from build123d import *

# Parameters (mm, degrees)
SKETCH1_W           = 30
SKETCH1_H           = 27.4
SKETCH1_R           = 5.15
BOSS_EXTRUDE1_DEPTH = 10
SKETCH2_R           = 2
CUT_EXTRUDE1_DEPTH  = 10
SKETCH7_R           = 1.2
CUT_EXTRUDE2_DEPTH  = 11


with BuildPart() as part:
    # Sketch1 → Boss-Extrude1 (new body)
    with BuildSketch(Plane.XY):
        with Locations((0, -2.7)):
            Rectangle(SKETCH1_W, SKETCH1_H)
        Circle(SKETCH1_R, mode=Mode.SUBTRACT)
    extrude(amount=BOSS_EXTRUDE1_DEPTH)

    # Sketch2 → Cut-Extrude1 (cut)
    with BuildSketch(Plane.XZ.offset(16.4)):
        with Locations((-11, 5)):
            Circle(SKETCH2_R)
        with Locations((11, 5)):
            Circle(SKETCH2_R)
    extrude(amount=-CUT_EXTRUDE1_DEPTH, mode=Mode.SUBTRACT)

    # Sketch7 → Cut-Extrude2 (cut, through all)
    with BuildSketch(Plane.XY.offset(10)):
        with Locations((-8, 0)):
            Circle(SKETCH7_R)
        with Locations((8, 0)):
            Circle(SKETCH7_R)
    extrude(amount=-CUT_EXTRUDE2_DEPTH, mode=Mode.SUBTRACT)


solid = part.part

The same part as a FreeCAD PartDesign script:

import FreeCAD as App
import Part
import Sketcher


def add_polygon(sketch, points):
    """Adds a closed chain of lines whose ends are joined by coincident constraints."""
    first, n = sketch.GeometryCount, len(points)
    for a, b in zip(points, points[1:] + points[:1]):
        sketch.addGeometry(Part.LineSegment(App.Vector(*a, 0), App.Vector(*b, 0)), False)
    for i in range(n):
        sketch.addConstraint(Sketcher.Constraint("Coincident", first + i, 2, first + (i + 1) % n, 1))

doc = App.newDocument("Part")
body = doc.addObject("PartDesign::Body", "Body")

# Sketch on XY plane
sketch1 = body.newObject("Sketcher::SketchObject", "Sketch")
sketch1.AttachmentSupport = (doc.getObject("XY_Plane"), [""])
sketch1.MapMode = "FlatFace"
add_polygon(sketch1, [(-15, 11), (-15, -16), (15, -16), (15, 11)])  # lines 0-3
sketch1.addGeometry(Part.Circle(App.Vector(0, 0, 0), App.Vector(0, 0, 1), 5), False)  # 4
sketch1.addConstraint(Sketcher.Constraint("Vertical", 0))
sketch1.addConstraint(Sketcher.Constraint("Horizontal", 1))
sketch1.addConstraint(Sketcher.Constraint("Vertical", 2))
sketch1.addConstraint(Sketcher.Constraint("Horizontal", 3))
sketch1.addConstraint(Sketcher.Constraint("Coincident", 4, 3, -1, 1))
sketch1.addConstraint(Sketcher.Constraint("Diameter", 4, 10.3))
sketch1.addConstraint(Sketcher.Constraint("DistanceX", 1, 1, 1, 2, 30.0))
sketch1.addConstraint(Sketcher.Constraint("DistanceY", 0, 2, 0, 1, 27.4))
sketch1.addConstraint(Sketcher.Constraint("DistanceX", 0, 2, -1, 1, 15.0))
sketch1.addConstraint(Sketcher.Constraint("DistanceY", -1, 1, 2, 2, 11.0))
pad1 = body.newObject("PartDesign::Pad", "Pad")
pad1.Profile = sketch1
pad1.Length = 10

# Sketch on XZ plane
sketch2 = body.newObject("Sketcher::SketchObject", "Sketch001")
sketch2.AttachmentSupport = (doc.getObject("XZ_Plane"), [""])
sketch2.MapMode = "FlatFace"
sketch2.AttachmentOffset = App.Placement(App.Vector(0, 0, 16.4), App.Rotation())
sketch2.addGeometry(Part.Circle(App.Vector(-11, 5, 0), App.Vector(0, 0, 1), 2), False)
sketch2.addGeometry(Part.Circle(App.Vector(11, 5, 0), App.Vector(0, 0, 1), 2), False)
sketch2.addConstraint(Sketcher.Constraint("Equal", 0, 1))
sketch2.addConstraint(Sketcher.Constraint("Symmetric", 0, 3, 1, 3, -2))
sketch2.addConstraint(Sketcher.Constraint("Diameter", 0, 4.0))
sketch2.addConstraint(Sketcher.Constraint("DistanceX", 0, 3, -1, 1, 11.0))
sketch2.addConstraint(Sketcher.Constraint("DistanceY", -1, 1, 0, 3, 5.0))
pocket1 = body.newObject("PartDesign::Pocket", "Pocket")
pocket1.Profile = sketch2
pocket1.Length = 10

# Sketch on XY plane
sketch3 = body.newObject("Sketcher::SketchObject", "Sketch002")
sketch3.AttachmentSupport = (doc.getObject("XY_Plane"), [""])
sketch3.MapMode = "FlatFace"
sketch3.AttachmentOffset = App.Placement(App.Vector(0, 0, 10), App.Rotation())
sketch3.addGeometry(Part.Circle(App.Vector(-8, 0, 0), App.Vector(0, 0, 1), 1.2), False)
sketch3.addGeometry(Part.Circle(App.Vector(8, 0, 0), App.Vector(0, 0, 1), 1.2), False)
sketch3.addConstraint(Sketcher.Constraint("Equal", 0, 1))
sketch3.addConstraint(Sketcher.Constraint("Symmetric", 0, 3, 1, 3, -1, 1))
sketch3.addConstraint(Sketcher.Constraint("PointOnObject", 0, 3, -1))
sketch3.addConstraint(Sketcher.Constraint("Diameter", 0, 2.4))
sketch3.addConstraint(Sketcher.Constraint("DistanceX", 0, 3, -1, 1, 8.0))
pocket2 = body.newObject("PartDesign::Pocket", "Pocket001")
pocket2.Profile = sketch3
pocket2.Type = "ThroughAll"

doc.recompute()
